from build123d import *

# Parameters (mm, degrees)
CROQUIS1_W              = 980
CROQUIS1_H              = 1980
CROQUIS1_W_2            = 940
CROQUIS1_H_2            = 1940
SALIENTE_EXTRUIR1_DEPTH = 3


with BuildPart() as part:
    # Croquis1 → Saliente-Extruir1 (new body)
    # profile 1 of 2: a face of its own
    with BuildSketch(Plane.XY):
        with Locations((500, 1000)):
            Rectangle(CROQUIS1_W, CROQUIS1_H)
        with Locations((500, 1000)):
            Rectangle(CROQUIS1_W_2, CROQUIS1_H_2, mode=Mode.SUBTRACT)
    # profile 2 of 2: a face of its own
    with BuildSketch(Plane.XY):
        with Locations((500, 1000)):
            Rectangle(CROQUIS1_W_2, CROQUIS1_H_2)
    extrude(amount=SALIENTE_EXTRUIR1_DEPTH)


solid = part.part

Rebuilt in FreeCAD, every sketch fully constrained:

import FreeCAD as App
import Part
import Sketcher

doc = App.newDocument("Part")
params = doc.addObject("Spreadsheet::Sheet", "Params")
for row, (alias, value) in enumerate([
    ("sketch1_width", "980 mm"),
    ("sketch1_height", "1980 mm"),
    ("pad1_length", "3 mm"),
], start=1):
    params.set(f"A{row}", alias)
    params.set(f"B{row}", "=" + value)
    params.setAlias(f"B{row}", alias)

body = doc.addObject("PartDesign::Body", "Body")

sketch1 = doc.addObject("Sketcher::SketchObject", "Sketch")
body.addObject(sketch1)
sketch1.AttachmentSupport = (doc.XY_Plane, [""])
sketch1.MapMode = "FlatFace"
sketch1.addGeometry([
    Part.LineSegment(App.Vector(10, 1990, 0), App.Vector(10, 10, 0)),
    Part.LineSegment(App.Vector(10, 10, 0), App.Vector(990, 10, 0)),
    Part.LineSegment(App.Vector(990, 10, 0), App.Vector(990, 1990, 0)),
    Part.LineSegment(App.Vector(990, 1990, 0), App.Vector(10, 1990, 0)),
], False)
sketch1.addConstraint([
    Sketcher.Constraint("Coincident", 0, 2, 1, 1),
    Sketcher.Constraint("Coincident", 1, 2, 2, 1),
    Sketcher.Constraint("Coincident", 2, 2, 3, 1),
    Sketcher.Constraint("Coincident", 3, 2, 0, 1),
    Sketcher.Constraint("Vertical", 0),
    Sketcher.Constraint("Horizontal", 1),
    Sketcher.Constraint("Vertical", 2),
    Sketcher.Constraint("Horizontal", 3),
    Sketcher.Constraint("DistanceX", 1, 1, 1, 2, 980.0),
    Sketcher.Constraint("DistanceY", 0, 2, 0, 1, 1980.0),
    Sketcher.Constraint("DistanceX", -1, 1, 0, 2, 10.0),
    Sketcher.Constraint("DistanceY", -1, 1, 0, 2, 10.0),
])
sketch1.setExpression("Constraints[8]", "Params.sketch1_width")
sketch1.setExpression("Constraints[9]", "Params.sketch1_height")
pad1 = doc.addObject("PartDesign::Pad", "Pad")
body.addObject(pad1)
pad1.Profile = sketch1
pad1.setExpression("Length", "Params.pad1_length")

doc.recompute()
